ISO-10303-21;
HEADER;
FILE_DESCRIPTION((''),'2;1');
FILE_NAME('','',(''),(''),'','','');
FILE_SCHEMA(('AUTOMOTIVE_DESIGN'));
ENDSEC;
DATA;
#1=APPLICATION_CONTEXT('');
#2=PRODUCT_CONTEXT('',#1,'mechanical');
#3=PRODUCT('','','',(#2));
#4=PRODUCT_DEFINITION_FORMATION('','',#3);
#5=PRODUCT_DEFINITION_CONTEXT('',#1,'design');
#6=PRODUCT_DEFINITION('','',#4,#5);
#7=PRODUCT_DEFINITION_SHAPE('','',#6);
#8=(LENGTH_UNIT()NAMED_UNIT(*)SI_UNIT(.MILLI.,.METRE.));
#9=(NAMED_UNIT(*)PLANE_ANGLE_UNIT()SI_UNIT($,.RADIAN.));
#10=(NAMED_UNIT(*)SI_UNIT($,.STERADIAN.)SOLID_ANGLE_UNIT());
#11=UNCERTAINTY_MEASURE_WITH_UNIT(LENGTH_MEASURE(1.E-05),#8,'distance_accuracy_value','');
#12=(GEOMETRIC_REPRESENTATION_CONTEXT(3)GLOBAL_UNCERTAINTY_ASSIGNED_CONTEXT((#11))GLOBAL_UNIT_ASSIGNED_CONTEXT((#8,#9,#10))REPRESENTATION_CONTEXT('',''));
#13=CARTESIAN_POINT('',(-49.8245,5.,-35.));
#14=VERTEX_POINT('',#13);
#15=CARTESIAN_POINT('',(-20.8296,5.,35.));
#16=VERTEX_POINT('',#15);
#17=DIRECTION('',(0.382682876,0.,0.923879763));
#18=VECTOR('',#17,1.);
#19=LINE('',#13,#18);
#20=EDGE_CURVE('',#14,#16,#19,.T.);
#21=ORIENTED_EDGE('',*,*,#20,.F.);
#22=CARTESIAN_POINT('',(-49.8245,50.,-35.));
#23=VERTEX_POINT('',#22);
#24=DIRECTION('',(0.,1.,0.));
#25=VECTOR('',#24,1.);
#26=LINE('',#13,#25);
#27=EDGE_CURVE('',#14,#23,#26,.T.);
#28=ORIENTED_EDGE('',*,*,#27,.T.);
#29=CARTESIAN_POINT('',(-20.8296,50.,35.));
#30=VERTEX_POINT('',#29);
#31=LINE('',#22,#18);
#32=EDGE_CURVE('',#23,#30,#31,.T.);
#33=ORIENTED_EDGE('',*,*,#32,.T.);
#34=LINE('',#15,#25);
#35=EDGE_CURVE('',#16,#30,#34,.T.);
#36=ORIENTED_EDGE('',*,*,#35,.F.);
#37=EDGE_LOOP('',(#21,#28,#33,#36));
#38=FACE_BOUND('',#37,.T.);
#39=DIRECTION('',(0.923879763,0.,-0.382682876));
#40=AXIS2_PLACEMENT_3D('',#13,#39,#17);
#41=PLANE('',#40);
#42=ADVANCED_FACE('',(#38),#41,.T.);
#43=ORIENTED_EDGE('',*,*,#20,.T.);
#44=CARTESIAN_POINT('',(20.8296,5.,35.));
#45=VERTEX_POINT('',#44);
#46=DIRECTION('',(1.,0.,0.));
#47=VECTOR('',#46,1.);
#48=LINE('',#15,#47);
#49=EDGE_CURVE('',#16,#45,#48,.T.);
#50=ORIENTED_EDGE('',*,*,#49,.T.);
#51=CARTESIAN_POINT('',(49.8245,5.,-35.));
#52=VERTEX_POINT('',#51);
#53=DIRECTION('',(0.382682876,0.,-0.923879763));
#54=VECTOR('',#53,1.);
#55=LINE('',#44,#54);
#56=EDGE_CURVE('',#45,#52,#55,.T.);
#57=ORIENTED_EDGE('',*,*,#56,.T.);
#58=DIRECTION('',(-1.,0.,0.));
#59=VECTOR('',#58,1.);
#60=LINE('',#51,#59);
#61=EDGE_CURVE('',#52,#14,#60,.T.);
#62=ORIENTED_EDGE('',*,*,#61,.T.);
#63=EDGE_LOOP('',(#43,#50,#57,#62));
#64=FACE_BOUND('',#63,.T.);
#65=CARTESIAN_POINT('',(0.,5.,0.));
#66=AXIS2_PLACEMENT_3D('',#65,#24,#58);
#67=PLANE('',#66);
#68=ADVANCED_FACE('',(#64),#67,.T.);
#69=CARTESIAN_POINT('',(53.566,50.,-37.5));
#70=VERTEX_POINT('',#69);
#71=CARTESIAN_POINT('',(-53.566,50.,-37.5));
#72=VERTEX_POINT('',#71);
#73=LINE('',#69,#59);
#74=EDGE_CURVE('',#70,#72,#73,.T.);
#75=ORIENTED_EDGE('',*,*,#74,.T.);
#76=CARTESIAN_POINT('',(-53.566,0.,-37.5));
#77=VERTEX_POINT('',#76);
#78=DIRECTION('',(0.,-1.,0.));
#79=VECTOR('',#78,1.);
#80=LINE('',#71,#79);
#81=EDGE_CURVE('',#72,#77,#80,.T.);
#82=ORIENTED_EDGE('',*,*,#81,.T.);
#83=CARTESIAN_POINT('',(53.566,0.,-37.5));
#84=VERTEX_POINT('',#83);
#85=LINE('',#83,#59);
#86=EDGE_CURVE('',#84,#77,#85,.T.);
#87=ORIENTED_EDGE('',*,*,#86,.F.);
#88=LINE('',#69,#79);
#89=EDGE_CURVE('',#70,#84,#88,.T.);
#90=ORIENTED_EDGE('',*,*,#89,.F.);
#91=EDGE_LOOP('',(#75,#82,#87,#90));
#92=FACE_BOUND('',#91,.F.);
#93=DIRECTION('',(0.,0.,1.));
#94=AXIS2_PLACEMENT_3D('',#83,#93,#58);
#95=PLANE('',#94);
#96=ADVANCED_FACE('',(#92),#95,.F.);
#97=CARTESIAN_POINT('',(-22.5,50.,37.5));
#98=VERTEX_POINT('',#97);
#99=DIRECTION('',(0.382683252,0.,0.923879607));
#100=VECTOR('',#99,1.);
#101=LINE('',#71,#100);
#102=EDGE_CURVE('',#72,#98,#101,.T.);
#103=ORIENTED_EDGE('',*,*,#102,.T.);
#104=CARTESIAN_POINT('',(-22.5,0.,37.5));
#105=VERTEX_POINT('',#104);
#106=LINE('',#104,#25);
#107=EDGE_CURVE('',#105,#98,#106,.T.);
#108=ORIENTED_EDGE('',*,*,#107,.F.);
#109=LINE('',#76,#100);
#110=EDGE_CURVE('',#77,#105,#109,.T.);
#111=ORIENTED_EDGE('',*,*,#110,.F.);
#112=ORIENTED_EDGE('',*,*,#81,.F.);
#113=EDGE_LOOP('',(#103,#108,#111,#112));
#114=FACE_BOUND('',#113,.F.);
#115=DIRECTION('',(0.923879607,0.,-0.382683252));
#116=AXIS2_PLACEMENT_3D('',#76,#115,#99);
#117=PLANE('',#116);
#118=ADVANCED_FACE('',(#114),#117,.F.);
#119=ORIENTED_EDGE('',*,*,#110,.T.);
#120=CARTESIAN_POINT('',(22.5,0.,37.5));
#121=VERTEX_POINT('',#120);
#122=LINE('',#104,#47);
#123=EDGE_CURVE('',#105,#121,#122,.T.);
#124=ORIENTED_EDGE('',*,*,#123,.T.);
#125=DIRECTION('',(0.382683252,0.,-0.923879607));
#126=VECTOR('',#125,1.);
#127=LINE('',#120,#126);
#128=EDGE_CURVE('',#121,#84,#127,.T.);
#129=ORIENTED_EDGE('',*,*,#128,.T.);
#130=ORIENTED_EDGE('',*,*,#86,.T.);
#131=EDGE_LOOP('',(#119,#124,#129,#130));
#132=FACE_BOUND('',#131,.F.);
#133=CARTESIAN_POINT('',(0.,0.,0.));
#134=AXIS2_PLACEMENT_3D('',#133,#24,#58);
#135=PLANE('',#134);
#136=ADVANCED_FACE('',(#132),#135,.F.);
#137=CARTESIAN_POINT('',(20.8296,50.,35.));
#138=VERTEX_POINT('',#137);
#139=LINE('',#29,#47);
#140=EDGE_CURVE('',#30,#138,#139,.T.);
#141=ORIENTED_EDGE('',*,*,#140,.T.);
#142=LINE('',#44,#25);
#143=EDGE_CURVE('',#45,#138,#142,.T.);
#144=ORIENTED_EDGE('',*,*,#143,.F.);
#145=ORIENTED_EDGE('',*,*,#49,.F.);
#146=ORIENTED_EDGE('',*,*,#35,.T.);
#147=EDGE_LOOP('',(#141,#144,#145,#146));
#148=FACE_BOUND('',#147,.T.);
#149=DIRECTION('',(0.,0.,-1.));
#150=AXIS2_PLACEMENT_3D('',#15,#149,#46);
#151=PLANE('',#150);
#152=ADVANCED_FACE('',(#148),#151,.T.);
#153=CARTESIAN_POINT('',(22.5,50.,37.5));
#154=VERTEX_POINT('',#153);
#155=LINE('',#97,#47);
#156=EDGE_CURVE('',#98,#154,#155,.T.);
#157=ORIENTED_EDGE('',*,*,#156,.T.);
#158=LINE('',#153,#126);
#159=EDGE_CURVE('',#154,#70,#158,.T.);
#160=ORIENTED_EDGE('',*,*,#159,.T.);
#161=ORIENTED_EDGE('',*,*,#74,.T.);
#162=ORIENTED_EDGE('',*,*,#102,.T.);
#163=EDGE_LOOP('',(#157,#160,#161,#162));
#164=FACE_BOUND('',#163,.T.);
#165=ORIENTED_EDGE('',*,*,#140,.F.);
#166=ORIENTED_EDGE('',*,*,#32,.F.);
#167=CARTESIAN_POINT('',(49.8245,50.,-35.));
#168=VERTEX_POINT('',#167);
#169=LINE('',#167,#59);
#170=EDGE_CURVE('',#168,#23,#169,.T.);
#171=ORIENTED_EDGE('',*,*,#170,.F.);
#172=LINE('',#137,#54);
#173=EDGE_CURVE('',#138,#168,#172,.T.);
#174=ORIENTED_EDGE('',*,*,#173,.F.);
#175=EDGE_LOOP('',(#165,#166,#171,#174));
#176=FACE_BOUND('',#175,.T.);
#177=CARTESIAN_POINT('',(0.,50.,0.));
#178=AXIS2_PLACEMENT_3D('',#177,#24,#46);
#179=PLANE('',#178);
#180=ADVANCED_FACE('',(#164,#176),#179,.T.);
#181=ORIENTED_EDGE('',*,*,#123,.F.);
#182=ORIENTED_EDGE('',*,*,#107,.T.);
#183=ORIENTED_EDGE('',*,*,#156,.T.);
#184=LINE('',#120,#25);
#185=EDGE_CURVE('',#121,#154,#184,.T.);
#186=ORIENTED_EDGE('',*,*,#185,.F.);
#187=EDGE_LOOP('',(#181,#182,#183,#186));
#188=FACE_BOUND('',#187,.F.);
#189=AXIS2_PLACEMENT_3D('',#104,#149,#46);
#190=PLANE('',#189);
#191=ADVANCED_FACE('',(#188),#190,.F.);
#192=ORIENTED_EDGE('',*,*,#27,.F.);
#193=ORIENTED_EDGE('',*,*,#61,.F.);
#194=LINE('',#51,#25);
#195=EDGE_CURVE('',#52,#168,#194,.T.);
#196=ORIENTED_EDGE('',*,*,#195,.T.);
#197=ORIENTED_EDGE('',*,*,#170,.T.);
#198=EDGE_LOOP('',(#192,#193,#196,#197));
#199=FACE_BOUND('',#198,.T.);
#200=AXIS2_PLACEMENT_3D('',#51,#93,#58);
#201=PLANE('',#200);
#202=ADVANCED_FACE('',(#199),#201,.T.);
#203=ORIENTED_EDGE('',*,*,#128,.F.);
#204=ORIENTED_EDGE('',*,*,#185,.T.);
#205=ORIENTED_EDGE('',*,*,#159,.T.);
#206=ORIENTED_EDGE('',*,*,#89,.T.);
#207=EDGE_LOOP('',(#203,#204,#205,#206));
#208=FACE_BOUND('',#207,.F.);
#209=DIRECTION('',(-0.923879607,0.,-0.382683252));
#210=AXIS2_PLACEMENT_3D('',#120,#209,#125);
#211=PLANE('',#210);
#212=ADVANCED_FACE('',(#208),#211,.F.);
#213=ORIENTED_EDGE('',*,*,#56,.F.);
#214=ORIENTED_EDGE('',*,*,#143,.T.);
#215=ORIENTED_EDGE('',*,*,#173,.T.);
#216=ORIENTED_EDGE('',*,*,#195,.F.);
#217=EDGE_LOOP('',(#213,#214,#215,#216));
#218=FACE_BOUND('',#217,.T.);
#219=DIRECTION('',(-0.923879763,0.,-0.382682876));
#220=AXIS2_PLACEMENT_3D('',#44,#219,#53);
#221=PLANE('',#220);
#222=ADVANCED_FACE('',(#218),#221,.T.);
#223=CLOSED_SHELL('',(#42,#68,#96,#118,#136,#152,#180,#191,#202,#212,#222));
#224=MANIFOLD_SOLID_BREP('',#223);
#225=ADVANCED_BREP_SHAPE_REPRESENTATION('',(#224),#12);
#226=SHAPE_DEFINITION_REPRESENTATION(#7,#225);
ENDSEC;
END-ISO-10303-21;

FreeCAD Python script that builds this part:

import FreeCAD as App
import Part
import Sketcher
Q = App.Units.Quantity

doc = App.newDocument("Part")
params = doc.addObject("Spreadsheet::Sheet", "Params")
for row, (alias, value) in enumerate([
    ("sketch1_width", "45 mm"),
    ("pad1_length", "5 mm"),
    ("sketch2_width", "45 mm"),
    ("pad2_length", "45 mm"),
], start=1):
    params.set(f"A{row}", alias)
    params.set(f"B{row}", "=" + value)
    params.setAlias(f"B{row}", alias)

body = doc.addObject("PartDesign::Body", "Body")

sketch1 = body.newObject("Sketcher::SketchObject", "Sketch")
sketch1.AttachmentSupport = (doc.getObject("XZ_Plane"), [""])
sketch1.MapMode = "FlatFace"
sketch1.addGeometry([
    Part.LineSegment(App.Vector(-53.566, -37.5, 0), App.Vector(-22.5, 37.5, 0)),
    Part.LineSegment(App.Vector(-22.5, 37.5, 0), App.Vector(22.5, 37.5, 0)),
    Part.LineSegment(App.Vector(22.5, 37.5, 0), App.Vector(53.566, -37.5, 0)),
    Part.LineSegment(App.Vector(53.566, -37.5, 0), App.Vector(-53.566, -37.5, 0)),
], False)
sketch1.addConstraint([
    Sketcher.Constraint("Coincident", 0, 2, 1, 1),
    Sketcher.Constraint("Coincident", 1, 2, 2, 1),
    Sketcher.Constraint("Coincident", 2, 2, 3, 1),
    Sketcher.Constraint("Coincident", 3, 2, 0, 1),
    Sketcher.Constraint("Horizontal", 1),
    Sketcher.Constraint("Horizontal", 3),
    Sketcher.Constraint("Equal", 0, 2),
    Sketcher.Constraint("DistanceX", 1, 1, 1, 2, 45.0),
    Sketcher.Constraint("DistanceY", 2, 2, 1, 2, 75.0),
    Sketcher.Constraint("Angle", 0, Q("67.5 deg")),
    Sketcher.Constraint("DistanceX", 0, 2, -1, 1, 22.5),
    Sketcher.Constraint("DistanceY", -1, 1, 0, 2, 37.5),
])
sketch1.setExpression("Constraints[7]", "Params.sketch1_width")
pad1 = body.newObject("PartDesign::Pad", "Pad")
pad1.Profile = sketch1
pad1.setExpression("Length", "Params.pad1_length")
pad1.Reversed = True

sketch2 = body.newObject("Sketcher::SketchObject", "Sketch001")
sketch2.AttachmentSupport = (doc.getObject("XZ_Plane"), [""])
sketch2.MapMode = "FlatFace"
sketch2.AttachmentOffset = App.Placement(App.Vector(0, 0, -5), App.Rotation())
sketch2.addGeometry([
    Part.LineSegment(App.Vector(-53.566, -37.5, 0), App.Vector(-22.5, 37.5, 0)),
    Part.LineSegment(App.Vector(-22.5, 37.5, 0), App.Vector(22.5, 37.5, 0)),
    Part.LineSegment(App.Vector(22.5, 37.5, 0), App.Vector(53.566, -37.5, 0)),
    Part.LineSegment(App.Vector(53.566, -37.5, 0), App.Vector(-53.566, -37.5, 0)),
    Part.LineSegment(App.Vector(20.8296, 35, 0), App.Vector(-20.8296, 35, 0)),
    Part.LineSegment(App.Vector(-20.8296, 35, 0), App.Vector(-49.8245, -35, 0)),
    Part.LineSegment(App.Vector(-49.8245, -35, 0), App.Vector(49.8245, -35, 0)),
    Part.LineSegment(App.Vector(49.8245, -35, 0), App.Vector(20.8296, 35, 0)),
], False)
sketch2.addConstraint([
    Sketcher.Constraint("Coincident", 0, 2, 1, 1),
    Sketcher.Constraint("Coincident", 1, 2, 2, 1),
    Sketcher.Constraint("Coincident", 2, 2, 3, 1),
    Sketcher.Constraint("Coincident", 3, 2, 0, 1),
    Sketcher.Constraint("Coincident", 4, 2, 5, 1),
    Sketcher.Constraint("Coincident", 5, 2, 6, 1),
    Sketcher.Constraint("Coincident", 6, 2, 7, 1),
    Sketcher.Constraint("Coincident", 7, 2, 4, 1),
    Sketcher.Constraint("Horizontal", 1),
    Sketcher.Constraint("Horizontal", 3),
    Sketcher.Constraint("Horizontal", 4),
    Sketcher.Constraint("Horizontal", 6),
    Sketcher.Constraint("Parallel", 0, 5),
    Sketcher.Constraint("Parallel", 2, 7),
    Sketcher.Constraint("Equal", 0, 2),
    Sketcher.Constraint("DistanceY", 4, 2, 0, 2, 2.5),
    Sketcher.Constraint("DistanceY", 3, 2, 5, 2, 2.5),
    Sketcher.Constraint("DistanceX", 1, 1, 1, 2, 45.0),
    Sketcher.Constraint("DistanceY", -1, 1, 4, 2, 35.0),
    Sketcher.Constraint("DistanceY", 5, 2, -1, 1, 35.0),
    Sketcher.Constraint("Angle", 0, Q("67.5 deg")),
    Sketcher.Constraint("DistanceX", 0, 2, -1, 1, 22.5),
    Sketcher.Constraint("DistanceX", 6, 1, 6, 2, 99.649),
    Sketcher.Constraint("DistanceX", 4, 2, -1, 1, 20.8296),
])
sketch2.setExpression("Constraints[17]", "Params.sketch2_width")
pad2 = body.newObject("PartDesign::Pad", "Pad001")
pad2.Profile = sketch2
pad2.setExpression("Length", "Params.pad2_length")
pad2.Reversed = True

doc.recompute()
